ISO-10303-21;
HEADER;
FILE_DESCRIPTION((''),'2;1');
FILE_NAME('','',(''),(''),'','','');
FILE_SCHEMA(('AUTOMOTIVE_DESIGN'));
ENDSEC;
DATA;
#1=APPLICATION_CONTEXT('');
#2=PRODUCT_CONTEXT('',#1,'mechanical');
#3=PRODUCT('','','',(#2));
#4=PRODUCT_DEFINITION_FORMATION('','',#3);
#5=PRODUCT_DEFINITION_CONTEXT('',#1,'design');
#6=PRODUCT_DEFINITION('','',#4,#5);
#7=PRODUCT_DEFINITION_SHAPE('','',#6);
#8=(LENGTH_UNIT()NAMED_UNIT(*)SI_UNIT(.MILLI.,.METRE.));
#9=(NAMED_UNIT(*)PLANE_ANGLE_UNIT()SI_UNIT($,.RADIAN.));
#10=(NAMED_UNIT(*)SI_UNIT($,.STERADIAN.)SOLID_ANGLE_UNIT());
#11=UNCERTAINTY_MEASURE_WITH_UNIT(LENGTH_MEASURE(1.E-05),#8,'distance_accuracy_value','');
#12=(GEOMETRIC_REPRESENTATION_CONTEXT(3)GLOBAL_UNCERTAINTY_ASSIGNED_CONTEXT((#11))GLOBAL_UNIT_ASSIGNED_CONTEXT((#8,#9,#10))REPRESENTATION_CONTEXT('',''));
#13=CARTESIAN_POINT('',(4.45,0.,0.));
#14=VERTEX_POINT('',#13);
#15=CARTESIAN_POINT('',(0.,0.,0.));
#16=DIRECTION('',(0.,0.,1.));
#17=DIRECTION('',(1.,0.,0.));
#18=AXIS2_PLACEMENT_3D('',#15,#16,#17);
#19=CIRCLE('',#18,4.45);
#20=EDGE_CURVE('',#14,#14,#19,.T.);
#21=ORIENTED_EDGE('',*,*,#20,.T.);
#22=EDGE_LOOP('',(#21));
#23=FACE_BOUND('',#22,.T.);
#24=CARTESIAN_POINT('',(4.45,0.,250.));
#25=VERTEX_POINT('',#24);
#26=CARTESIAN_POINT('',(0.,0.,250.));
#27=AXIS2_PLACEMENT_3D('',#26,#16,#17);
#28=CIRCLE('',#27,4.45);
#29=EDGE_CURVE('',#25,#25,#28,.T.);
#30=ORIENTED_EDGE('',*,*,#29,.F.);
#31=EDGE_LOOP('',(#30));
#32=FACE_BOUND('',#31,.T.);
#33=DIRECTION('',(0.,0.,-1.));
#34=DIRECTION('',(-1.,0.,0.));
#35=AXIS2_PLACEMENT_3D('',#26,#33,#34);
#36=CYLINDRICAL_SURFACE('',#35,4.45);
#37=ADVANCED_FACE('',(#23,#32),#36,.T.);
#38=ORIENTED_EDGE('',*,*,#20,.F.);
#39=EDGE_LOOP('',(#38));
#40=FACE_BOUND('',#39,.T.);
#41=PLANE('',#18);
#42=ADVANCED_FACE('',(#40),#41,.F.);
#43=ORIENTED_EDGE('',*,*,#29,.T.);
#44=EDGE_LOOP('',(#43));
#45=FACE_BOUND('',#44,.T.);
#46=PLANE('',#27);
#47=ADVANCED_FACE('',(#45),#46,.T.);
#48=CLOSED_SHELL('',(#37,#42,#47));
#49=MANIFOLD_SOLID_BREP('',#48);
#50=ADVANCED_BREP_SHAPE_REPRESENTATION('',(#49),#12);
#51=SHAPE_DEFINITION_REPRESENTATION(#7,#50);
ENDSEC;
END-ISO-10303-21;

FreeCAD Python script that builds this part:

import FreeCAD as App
import Part
import Sketcher

V = App.Vector
Q = App.Units.Quantity

doc = App.newDocument("Part")
body = doc.addObject("PartDesign::Body", "Body")

sketch1 = body.newObject("Sketcher::SketchObject", "Sketch")
sketch1.AttachmentSupport = (doc.getObject("XY_Plane"), [""])
sketch1.MapMode = "FlatFace"
sketch1.addGeometry(Part.Circle(V(0, 0, 0), V(0, 0, 1), 4.5), False)
sketch1.addConstraint([
    Sketcher.Constraint("Coincident", 0, 3, -1, 1),
    Sketcher.Constraint("Diameter", 0, Q("8.9 mm")),
])
pad1 = body.newObject("PartDesign::Pad", "Pad")
pad1.Profile = sketch1
pad1.Length = 250

doc.recompute()
